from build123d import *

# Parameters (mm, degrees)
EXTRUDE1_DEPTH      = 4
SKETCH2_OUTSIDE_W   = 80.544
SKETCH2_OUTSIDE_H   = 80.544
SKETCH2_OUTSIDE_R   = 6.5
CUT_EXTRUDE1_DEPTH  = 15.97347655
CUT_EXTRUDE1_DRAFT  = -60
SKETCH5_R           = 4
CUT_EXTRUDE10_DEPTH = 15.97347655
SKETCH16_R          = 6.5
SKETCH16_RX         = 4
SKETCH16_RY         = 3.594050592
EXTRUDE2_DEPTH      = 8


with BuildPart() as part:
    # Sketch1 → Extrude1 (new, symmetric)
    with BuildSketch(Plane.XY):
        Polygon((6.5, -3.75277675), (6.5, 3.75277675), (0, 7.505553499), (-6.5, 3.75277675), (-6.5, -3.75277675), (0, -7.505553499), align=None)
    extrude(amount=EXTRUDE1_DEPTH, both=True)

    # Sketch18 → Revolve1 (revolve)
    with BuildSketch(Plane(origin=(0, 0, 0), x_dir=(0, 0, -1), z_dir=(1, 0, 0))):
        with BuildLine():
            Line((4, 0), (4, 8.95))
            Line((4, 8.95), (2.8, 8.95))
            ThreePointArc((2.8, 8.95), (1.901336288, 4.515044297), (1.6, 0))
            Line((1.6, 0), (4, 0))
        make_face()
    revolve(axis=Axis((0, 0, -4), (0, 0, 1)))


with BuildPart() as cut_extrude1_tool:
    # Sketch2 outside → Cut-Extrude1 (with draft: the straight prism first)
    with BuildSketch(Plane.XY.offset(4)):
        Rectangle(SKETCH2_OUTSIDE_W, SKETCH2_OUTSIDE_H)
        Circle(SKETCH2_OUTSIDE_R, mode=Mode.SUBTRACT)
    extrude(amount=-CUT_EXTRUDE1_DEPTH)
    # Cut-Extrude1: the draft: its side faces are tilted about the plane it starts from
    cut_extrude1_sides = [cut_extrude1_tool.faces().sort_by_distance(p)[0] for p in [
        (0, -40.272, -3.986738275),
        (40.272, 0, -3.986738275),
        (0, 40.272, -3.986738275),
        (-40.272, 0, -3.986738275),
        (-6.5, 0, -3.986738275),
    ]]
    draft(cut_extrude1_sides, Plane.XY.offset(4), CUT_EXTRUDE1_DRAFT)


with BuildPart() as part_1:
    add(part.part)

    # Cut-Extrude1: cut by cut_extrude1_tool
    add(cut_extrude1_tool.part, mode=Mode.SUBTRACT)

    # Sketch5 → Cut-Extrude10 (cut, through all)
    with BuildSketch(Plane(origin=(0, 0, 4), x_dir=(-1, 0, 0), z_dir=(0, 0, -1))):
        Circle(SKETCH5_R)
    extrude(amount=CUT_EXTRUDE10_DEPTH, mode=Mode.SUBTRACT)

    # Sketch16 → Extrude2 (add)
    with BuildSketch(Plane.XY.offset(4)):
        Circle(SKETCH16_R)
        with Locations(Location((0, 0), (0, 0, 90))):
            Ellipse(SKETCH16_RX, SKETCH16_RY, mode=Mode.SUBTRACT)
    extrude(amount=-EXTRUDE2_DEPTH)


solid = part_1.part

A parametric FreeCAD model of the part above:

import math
import FreeCAD as App
import Part
import Sketcher
Q = App.Units.Quantity


def faces_at(feature, points):
    """Names of the faces that lie closest to the given points."""
    faces = feature.Shape.Faces
    near = lambda p: min(range(len(faces)), key=lambda i: faces[i].distToShape(Part.Vertex(*p))[0])
    return sorted({f"Face{near(p) + 1}" for p in points})

doc = App.newDocument("Part")
body = doc.addObject("PartDesign::Body", "Body")

# Sketch on XY plane
sketch1 = body.newObject("Sketcher::SketchObject", "Sketch")
sketch1.AttachmentSupport = (doc.getObject("XY_Plane"), [""])
sketch1.MapMode = "FlatFace"
sketch1.addGeometry([
    Part.LineSegment(App.Vector(6, -4, 0), App.Vector(6, 4, 0)),  # 0
    Part.LineSegment(App.Vector(6, 4, 0), App.Vector(0, 8, 0)),  # 1
    Part.LineSegment(App.Vector(0, 8, 0), App.Vector(-6, 4, 0)),  # 2
    Part.LineSegment(App.Vector(-6, 4, 0), App.Vector(-6, -4, 0)),  # 3
    Part.LineSegment(App.Vector(-6, -4, 0), App.Vector(0, -8, 0)),  # 4
    Part.LineSegment(App.Vector(0, -8, 0), App.Vector(6, -4, 0)),  # 5
], False)
sketch1.addConstraint([
    Sketcher.Constraint("Coincident", 0, 2, 1, 1),
    Sketcher.Constraint("Coincident", 1, 2, 2, 1),
    Sketcher.Constraint("Coincident", 2, 2, 3, 1),
    Sketcher.Constraint("Coincident", 3, 2, 4, 1),
    Sketcher.Constraint("Coincident", 4, 2, 5, 1),
    Sketcher.Constraint("Coincident", 5, 2, 0, 1),
    Sketcher.Constraint("Vertical", 0),
    Sketcher.Constraint("Vertical", 3),
    Sketcher.Constraint("Symmetric", 0, 2, 3, 2, -1, 1),
    Sketcher.Constraint("Symmetric", 1, 2, 4, 2, -1, 1),
    Sketcher.Constraint("PointOnObject", 1, 2, -2),
    Sketcher.Constraint("Parallel", 2, 5),
    Sketcher.Constraint("Horizontal", 0, 2, 2, 2),
    Sketcher.Constraint("Angle", 1, Q("150 deg")),
    Sketcher.Constraint("DistanceX", 2, 2, 0, 2, 13.0),
    Sketcher.Constraint("DistanceY", 0, 1, 0, 2, 7.505554),
])
pad1 = body.newObject("PartDesign::Pad", "Pad")
pad1.Profile = sketch1
pad1.Length = 8
pad1.Midplane = True

# Sketch on YZ plane
sketch2 = body.newObject("Sketcher::SketchObject", "Sketch001")
sketch2.AttachmentSupport = (doc.getObject("YZ_Plane"), [""])
sketch2.MapMode = "FlatFace"
sketch2.addGeometry([
    Part.LineSegment(App.Vector(0, -4, 0), App.Vector(8.9, -4, 0)),
    Part.LineSegment(App.Vector(8.9, -4, 0), App.Vector(8.9, -2.8, 0)),
    Part.ArcOfCircle(Part.Circle(App.Vector(0, -35.6, 0), App.Vector(0, 0, 1), 34), math.radians(74.73), math.radians(90)),
    Part.LineSegment(App.Vector(0, -1.6, 0), App.Vector(0, -4, 0)),
], False)
sketch2.addConstraint([
    Sketcher.Constraint("Coincident", 0, 2, 1, 1),
    Sketcher.Constraint("Coincident", 1, 2, 2, 1),
    Sketcher.Constraint("Coincident", 2, 2, 3, 1),
    Sketcher.Constraint("Coincident", 3, 2, 0, 1),
    Sketcher.Constraint("Horizontal", 0),
    Sketcher.Constraint("Vertical", 1),
    Sketcher.Constraint("Vertical", 3),
    Sketcher.Constraint("PointOnObject", 2, 3, -2),
    Sketcher.Constraint("PointOnObject", 2, 2, -2),
    Sketcher.Constraint("DistanceY", 1, 1, 1, 2, 1.2),
    Sketcher.Constraint("DistanceY", 3, 2, 3, 1, 2.4),
    Sketcher.Constraint("DistanceY", 0, 2, -1, 1, 4.0),
    Sketcher.Constraint("DistanceX", 0, 1, 0, 2, 8.95),
])
revolution = body.newObject("PartDesign::Revolution", "Revolution")
revolution.Profile = sketch2
revolution.ReferenceAxis = (sketch2, ["V_Axis"])
revolution.Angle = 360
body2 = doc.addObject("PartDesign::Body", "Body001")

# Sketch on XY plane
sketch3 = body2.newObject("Sketcher::SketchObject", "Sketch002")
sketch3.AttachmentSupport = (doc.getObject("XY_Plane001"), [""])
sketch3.MapMode = "FlatFace"
sketch3.AttachmentOffset = App.Placement(App.Vector(0, 0, 4), App.Rotation())
sketch3.addGeometry([
    Part.LineSegment(App.Vector(-40, 40, 0), App.Vector(-40, -40, 0)),  # 0
    Part.LineSegment(App.Vector(-40, -40, 0), App.Vector(40, -40, 0)),  # 1
    Part.LineSegment(App.Vector(40, -40, 0), App.Vector(40, 40, 0)),  # 2
    Part.LineSegment(App.Vector(40, 40, 0), App.Vector(-40, 40, 0)),  # 3
    Part.Circle(App.Vector(0, 0, 0), App.Vector(0, 0, 1), 6),  # 4
], False)
sketch3.addConstraint([
    Sketcher.Constraint("Coincident", 0, 2, 1, 1),
    Sketcher.Constraint("Coincident", 1, 2, 2, 1),
    Sketcher.Constraint("Coincident", 2, 2, 3, 1),
    Sketcher.Constraint("Coincident", 3, 2, 0, 1),
    Sketcher.Constraint("Vertical", 0),
    Sketcher.Constraint("Horizontal", 1),
    Sketcher.Constraint("Vertical", 2),
    Sketcher.Constraint("Horizontal", 3),
    Sketcher.Constraint("Coincident", 4, 3, -1, 1),
    Sketcher.Constraint("Symmetric", 0, 2, 2, 2, -1, 1),
    Sketcher.Constraint("Equal", 3, 0),
    Sketcher.Constraint("Diameter", 4, 13.0),
    Sketcher.Constraint("DistanceX", 1, 1, 1, 2, 80.544),
])
pad2 = body2.newObject("PartDesign::Pad", "Pad001")
pad2.Profile = sketch3
pad2.Length = 15.973477
pad2.Reversed = True
doc.recompute()

datumplane = body2.newObject("PartDesign::Plane", "DatumPlane")
datumplane.AttachmentSupport = (doc.getObject("XY_Plane001"), [""])
datumplane.MapMode = "FlatFace"
datumplane.AttachmentOffset = App.Placement(App.Vector(0, 0, 4), App.Rotation())
draft = body2.newObject("PartDesign::Draft", "Draft")
draft.Base = (pad2, faces_at(pad2, [
    (0, -40.272, -3.987),
    (40.272, 0, -3.987),
    (0, 40.272, -3.987),
    (-40.272, 0, -3.987),
    (-6.5, 0, -3.987),
]))
draft.NeutralPlane = (datumplane, [""])
draft.Angle = 60
draft.Reversed = True
doc.recompute()

boolean = body.newObject("PartDesign::Boolean", "Boolean")
boolean.Type = "Cut"
boolean.addObjects([body2])

# Sketch on XY plane
sketch4 = body.newObject("Sketcher::SketchObject", "Sketch003")
sketch4.AttachmentSupport = (doc.getObject("XY_Plane"), [""])
sketch4.MapMode = "FlatFace"
sketch4.AttachmentOffset = App.Placement(App.Vector(0, 0, 4), App.Rotation())
sketch4.addGeometry(Part.Circle(App.Vector(0, 0, 0), App.Vector(0, 0, 1), 4), False)
sketch4.addConstraint([
    Sketcher.Constraint("Coincident", 0, 3, -1, 1),
    Sketcher.Constraint("Diameter", 0, 8.0),
])
pocket1 = body.newObject("PartDesign::Pocket", "Pocket")
pocket1.Profile = sketch4
pocket1.Type = "ThroughAll"

# Sketch on XY plane
sketch5 = body.newObject("Sketcher::SketchObject", "Sketch004")
sketch5.AttachmentSupport = (doc.getObject("XY_Plane"), [""])
sketch5.MapMode = "FlatFace"
sketch5.AttachmentOffset = App.Placement(App.Vector(0, 0, 4), App.Rotation())
sketch5.addGeometry([
    Part.Circle(App.Vector(0, 0, 0), App.Vector(0, 0, 1), 6.5),
    Part.Ellipse(App.Vector(0, 4, 0), App.Vector(-3.594051, 0, 0), App.Vector(0, 0, 0)),
], False)
sketch5.addConstraint([
    Sketcher.Constraint("Block", 1),
    Sketcher.Constraint("Coincident", 0, 3, -1, 1),
    Sketcher.Constraint("Diameter", 0, 13.0),
])
pad3 = body.newObject("PartDesign::Pad", "Pad002")
pad3.Profile = sketch5
pad3.Length = 8
pad3.Reversed = True

doc.recompute()
